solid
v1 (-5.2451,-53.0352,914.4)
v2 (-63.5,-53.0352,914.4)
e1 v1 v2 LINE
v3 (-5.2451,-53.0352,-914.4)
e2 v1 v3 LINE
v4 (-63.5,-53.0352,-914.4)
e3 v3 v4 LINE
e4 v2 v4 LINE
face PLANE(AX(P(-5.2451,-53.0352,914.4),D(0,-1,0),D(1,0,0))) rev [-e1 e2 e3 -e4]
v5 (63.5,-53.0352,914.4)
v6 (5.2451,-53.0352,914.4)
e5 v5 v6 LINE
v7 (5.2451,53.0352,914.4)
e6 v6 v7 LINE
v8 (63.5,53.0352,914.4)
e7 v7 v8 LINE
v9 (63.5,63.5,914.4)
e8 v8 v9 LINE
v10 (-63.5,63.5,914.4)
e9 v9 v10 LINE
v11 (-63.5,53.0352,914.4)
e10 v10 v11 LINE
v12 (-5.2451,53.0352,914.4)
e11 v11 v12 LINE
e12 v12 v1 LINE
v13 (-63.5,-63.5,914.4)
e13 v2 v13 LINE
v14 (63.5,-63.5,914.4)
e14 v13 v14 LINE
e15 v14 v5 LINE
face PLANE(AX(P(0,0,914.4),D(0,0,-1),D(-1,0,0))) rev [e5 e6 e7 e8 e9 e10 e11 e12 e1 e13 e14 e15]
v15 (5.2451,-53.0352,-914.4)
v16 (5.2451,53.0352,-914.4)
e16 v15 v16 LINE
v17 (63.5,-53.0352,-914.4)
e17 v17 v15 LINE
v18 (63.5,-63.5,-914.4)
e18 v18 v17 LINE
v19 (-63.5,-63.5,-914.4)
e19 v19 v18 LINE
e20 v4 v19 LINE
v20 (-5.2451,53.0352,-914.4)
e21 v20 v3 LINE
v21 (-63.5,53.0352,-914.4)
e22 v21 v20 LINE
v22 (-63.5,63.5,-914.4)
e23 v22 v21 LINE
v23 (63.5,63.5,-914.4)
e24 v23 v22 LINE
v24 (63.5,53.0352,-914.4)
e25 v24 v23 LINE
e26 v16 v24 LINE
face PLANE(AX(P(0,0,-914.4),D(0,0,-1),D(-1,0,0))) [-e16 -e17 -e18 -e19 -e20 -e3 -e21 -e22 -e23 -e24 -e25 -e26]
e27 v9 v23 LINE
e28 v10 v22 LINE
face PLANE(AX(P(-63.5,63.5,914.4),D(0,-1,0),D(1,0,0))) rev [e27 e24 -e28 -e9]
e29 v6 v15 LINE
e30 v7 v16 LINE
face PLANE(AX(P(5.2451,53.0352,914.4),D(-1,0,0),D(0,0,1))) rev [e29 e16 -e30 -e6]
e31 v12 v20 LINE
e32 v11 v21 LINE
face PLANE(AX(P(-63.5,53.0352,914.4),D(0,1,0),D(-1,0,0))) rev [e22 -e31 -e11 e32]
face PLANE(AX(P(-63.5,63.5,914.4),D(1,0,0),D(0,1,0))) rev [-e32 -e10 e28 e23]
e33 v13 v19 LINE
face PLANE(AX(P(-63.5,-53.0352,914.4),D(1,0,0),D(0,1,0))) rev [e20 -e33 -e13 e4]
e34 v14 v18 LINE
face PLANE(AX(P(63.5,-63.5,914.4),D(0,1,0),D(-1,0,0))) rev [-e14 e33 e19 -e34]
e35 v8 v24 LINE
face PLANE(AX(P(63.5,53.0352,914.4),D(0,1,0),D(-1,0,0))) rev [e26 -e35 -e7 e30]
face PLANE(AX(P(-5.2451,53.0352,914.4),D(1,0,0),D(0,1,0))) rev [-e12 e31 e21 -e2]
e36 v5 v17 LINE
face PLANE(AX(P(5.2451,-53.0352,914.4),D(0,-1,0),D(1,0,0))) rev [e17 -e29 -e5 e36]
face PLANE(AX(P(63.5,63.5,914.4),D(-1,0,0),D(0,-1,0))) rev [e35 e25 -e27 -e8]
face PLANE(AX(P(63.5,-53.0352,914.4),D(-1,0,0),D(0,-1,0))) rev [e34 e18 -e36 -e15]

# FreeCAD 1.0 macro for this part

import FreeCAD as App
import Part
import Sketcher
Q = App.Units.Quantity

doc = App.newDocument("Part")
body = doc.addObject("PartDesign::Body", "Body")

sketch1 = body.newObject("Sketcher::SketchObject", "Sketch")
sketch1.AttachmentSupport = (doc.getObject("XY_Plane"), [""])
sketch1.MapMode = "FlatFace"
sketch1.addGeometry([
    Part.LineSegment(App.Vector(-63.5, 63.5, 0), App.Vector(-63.5, 53.0352, 0)),
    Part.LineSegment(App.Vector(-63.5, 53.0352, 0), App.Vector(-5.2451, 53.0352, 0)),
    Part.LineSegment(App.Vector(-5.2451, 53.0352, 0), App.Vector(-5.2451, -53.0352, 0)),
    Part.LineSegment(App.Vector(-5.2451, -53.0352, 0), App.Vector(-63.5, -53.0352, 0)),
    Part.LineSegment(App.Vector(-63.5, -53.0352, 0), App.Vector(-63.5, -63.5, 0)),
    Part.LineSegment(App.Vector(-63.5, -63.5, 0), App.Vector(63.5, -63.5, 0)),
    Part.LineSegment(App.Vector(63.5, -63.5, 0), App.Vector(63.5, -53.0352, 0)),
    Part.LineSegment(App.Vector(63.5, -53.0352, 0), App.Vector(5.2451, -53.0352, 0)),
    Part.LineSegment(App.Vector(5.2451, -53.0352, 0), App.Vector(5.2451, 53.0352, 0)),
    Part.LineSegment(App.Vector(5.2451, 53.0352, 0), App.Vector(63.5, 53.0352, 0)),
    Part.LineSegment(App.Vector(63.5, 53.0352, 0), App.Vector(63.5, 63.5, 0)),
    Part.LineSegment(App.Vector(63.5, 63.5, 0), App.Vector(-63.5, 63.5, 0)),
], False)
sketch1.addConstraint([
    Sketcher.Constraint("Coincident", 0, 2, 1, 1),
    Sketcher.Constraint("Coincident", 1, 2, 2, 1),
    Sketcher.Constraint("Coincident", 2, 2, 3, 1),
    Sketcher.Constraint("Coincident", 3, 2, 4, 1),
    Sketcher.Constraint("Coincident", 4, 2, 5, 1),
    Sketcher.Constraint("Coincident", 5, 2, 6, 1),
    Sketcher.Constraint("Coincident", 6, 2, 7, 1),
    Sketcher.Constraint("Coincident", 7, 2, 8, 1),
    Sketcher.Constraint("Coincident", 8, 2, 9, 1),
    Sketcher.Constraint("Coincident", 9, 2, 10, 1),
    Sketcher.Constraint("Coincident", 10, 2, 11, 1),
    Sketcher.Constraint("Coincident", 11, 2, 0, 1),
    Sketcher.Constraint("Vertical", 0),
    Sketcher.Constraint("Horizontal", 1),
    Sketcher.Constraint("Vertical", 2),
    Sketcher.Constraint("Horizontal", 3),
    Sketcher.Constraint("Vertical", 4),
    Sketcher.Constraint("Horizontal", 5),
    Sketcher.Constraint("Vertical", 6),
    Sketcher.Constraint("Horizontal", 7),
    Sketcher.Constraint("Vertical", 8),
    Sketcher.Constraint("Horizontal", 9),
    Sketcher.Constraint("Vertical", 10),
    Sketcher.Constraint("Horizontal", 11),
    Sketcher.Constraint("Symmetric", 0, 2, 6, 2, -1, 1),
    Sketcher.Constraint("Symmetric", 2, 2, 8, 2, -1, 1),
    Sketcher.Constraint("Symmetric", 4, 2, 10, 2, -1, 1),
    Sketcher.Constraint("Symmetric", 3, 2, 6, 2, -2),
    Sketcher.Constraint("DistanceX", 5, 1, 5, 2, Q("5 in")),
    Sketcher.Constraint("DistanceY", 5, 2, 10, 2, Q("5 in")),
    Sketcher.Constraint("DistanceY", 0, 2, 0, 1, Q("0.412 in")),
    Sketcher.Constraint("DistanceX", 1, 1, 1, 2, Q("2.2935 in")),
])
pad1 = body.newObject("PartDesign::Pad", "Pad")
pad1.Profile = sketch1
pad1.Length = Q("72 in")
pad1.Midplane = True

doc.recompute()
